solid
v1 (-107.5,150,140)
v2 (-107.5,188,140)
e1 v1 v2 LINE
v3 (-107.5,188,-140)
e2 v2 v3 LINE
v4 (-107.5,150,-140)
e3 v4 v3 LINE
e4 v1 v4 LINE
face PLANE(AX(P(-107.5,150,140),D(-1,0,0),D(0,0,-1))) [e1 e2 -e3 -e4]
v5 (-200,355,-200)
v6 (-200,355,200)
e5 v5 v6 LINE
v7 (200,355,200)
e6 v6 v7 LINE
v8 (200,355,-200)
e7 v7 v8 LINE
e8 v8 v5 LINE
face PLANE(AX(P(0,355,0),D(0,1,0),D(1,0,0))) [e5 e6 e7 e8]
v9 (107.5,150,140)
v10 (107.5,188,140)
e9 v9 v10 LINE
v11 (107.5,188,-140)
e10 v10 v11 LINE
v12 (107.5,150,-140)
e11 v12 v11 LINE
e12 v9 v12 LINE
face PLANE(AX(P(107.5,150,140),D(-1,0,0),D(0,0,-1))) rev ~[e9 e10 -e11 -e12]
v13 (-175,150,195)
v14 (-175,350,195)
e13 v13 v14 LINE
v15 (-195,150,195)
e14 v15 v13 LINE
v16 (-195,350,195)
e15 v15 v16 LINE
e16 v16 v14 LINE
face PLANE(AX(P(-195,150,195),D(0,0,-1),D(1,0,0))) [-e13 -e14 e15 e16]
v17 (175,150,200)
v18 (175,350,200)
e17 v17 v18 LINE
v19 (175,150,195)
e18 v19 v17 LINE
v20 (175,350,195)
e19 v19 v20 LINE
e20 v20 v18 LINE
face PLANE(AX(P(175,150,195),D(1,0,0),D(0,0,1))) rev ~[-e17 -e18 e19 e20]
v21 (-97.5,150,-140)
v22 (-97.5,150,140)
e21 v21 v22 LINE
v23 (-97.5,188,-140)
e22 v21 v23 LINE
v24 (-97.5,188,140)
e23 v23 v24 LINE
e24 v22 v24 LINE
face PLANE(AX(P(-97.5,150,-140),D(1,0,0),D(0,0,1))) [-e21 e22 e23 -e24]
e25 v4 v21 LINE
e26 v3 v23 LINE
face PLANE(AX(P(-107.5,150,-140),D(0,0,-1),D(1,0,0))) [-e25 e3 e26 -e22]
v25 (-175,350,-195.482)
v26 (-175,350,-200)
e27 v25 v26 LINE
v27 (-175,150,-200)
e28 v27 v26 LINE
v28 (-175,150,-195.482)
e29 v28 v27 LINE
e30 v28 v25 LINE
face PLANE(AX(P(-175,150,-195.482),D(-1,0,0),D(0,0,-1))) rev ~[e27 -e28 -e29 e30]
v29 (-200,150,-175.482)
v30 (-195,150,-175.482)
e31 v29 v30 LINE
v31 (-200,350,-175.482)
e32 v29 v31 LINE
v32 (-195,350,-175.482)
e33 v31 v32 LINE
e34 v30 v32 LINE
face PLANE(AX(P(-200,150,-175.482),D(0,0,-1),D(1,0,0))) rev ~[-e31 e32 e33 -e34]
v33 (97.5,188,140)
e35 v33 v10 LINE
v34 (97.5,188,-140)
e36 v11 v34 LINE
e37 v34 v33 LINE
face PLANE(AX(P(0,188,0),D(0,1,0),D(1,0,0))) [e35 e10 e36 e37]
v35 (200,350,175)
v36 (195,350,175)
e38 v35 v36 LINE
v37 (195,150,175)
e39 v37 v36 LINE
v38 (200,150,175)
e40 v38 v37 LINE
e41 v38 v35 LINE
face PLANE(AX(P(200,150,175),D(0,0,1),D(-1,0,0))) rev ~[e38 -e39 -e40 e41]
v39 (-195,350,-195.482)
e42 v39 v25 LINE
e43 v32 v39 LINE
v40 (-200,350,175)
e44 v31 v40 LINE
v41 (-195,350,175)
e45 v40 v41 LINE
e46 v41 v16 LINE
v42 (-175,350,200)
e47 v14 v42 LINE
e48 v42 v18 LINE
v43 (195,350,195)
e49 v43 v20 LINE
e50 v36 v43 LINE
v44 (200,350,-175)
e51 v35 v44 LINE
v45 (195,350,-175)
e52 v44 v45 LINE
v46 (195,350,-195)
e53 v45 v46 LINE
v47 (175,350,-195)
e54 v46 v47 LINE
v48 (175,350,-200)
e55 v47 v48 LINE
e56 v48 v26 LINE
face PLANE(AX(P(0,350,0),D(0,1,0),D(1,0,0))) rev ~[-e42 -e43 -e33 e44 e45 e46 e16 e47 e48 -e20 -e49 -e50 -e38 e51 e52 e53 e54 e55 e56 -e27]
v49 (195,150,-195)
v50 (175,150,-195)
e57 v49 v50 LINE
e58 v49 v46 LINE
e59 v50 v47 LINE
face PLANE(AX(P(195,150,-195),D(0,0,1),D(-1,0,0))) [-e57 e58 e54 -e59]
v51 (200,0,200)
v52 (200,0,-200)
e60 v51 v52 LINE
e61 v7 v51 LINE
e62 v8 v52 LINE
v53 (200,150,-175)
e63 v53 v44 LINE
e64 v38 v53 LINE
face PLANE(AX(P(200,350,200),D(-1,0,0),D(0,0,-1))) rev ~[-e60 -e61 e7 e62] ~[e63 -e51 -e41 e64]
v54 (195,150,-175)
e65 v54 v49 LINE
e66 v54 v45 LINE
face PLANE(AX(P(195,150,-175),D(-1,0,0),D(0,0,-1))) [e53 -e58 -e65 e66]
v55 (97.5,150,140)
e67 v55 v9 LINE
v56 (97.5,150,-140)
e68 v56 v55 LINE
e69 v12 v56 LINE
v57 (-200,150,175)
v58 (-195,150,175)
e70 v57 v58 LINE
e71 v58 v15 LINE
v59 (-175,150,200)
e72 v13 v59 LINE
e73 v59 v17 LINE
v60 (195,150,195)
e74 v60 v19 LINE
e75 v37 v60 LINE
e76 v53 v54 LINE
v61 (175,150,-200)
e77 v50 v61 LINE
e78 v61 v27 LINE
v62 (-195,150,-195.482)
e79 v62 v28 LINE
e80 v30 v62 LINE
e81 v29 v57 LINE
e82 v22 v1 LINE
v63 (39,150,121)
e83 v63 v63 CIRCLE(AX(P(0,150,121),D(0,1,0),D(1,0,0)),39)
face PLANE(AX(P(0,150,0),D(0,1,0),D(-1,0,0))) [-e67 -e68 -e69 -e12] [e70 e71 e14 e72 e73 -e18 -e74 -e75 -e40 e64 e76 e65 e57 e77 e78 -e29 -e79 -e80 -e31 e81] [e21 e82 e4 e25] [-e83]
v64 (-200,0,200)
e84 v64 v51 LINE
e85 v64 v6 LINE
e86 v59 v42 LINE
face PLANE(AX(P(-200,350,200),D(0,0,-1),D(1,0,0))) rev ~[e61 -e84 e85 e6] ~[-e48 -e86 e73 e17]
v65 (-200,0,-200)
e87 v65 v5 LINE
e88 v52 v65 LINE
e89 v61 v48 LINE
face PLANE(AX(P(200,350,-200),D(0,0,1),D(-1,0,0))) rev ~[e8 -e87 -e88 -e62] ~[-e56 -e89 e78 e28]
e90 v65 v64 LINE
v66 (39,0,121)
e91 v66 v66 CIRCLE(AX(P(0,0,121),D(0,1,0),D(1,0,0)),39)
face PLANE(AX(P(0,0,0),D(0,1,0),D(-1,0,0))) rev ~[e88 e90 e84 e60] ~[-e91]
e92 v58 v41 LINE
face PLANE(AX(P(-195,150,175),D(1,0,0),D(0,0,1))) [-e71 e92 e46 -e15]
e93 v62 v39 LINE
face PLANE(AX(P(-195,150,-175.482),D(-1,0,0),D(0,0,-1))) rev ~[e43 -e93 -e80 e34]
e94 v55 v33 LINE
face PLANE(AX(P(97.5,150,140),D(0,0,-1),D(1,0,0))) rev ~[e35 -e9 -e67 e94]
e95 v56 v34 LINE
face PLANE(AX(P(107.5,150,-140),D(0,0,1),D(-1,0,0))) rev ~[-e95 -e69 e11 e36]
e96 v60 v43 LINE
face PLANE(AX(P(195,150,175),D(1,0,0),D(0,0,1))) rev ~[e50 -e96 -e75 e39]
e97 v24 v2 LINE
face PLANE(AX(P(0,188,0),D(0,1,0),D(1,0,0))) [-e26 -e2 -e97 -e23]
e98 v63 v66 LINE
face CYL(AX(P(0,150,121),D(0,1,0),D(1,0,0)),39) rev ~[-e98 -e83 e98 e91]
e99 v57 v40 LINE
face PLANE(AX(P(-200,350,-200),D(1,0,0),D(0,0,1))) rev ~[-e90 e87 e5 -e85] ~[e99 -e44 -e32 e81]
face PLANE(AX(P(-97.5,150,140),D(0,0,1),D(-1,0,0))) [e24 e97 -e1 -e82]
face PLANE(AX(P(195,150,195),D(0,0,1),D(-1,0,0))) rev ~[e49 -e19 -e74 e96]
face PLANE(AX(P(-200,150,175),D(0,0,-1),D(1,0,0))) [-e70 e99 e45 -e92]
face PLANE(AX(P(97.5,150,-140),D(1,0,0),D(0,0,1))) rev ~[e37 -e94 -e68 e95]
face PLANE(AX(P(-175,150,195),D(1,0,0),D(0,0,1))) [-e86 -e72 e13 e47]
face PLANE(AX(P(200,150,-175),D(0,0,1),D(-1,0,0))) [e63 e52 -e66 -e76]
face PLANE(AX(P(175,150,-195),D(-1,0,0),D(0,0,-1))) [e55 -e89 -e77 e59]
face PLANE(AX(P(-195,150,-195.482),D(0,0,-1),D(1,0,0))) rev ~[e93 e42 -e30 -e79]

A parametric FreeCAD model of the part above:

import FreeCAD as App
import Part
import Sketcher
Q = App.Units.Quantity


def add_polygon(sketch, points):
    """Adds a closed chain of lines whose ends are joined by coincident constraints."""
    first, n = sketch.GeometryCount, len(points)
    for a, b in zip(points, points[1:] + points[:1]):
        sketch.addGeometry(Part.LineSegment(App.Vector(*a, 0), App.Vector(*b, 0)), False)
    for i in range(n):
        sketch.addConstraint(Sketcher.Constraint("Coincident", first + i, 2, first + (i + 1) % n, 1))

doc = App.newDocument("Part")
body = doc.addObject("PartDesign::Body", "Body")

sketch1 = body.newObject("Sketcher::SketchObject", "Sketch")
sketch1.AttachmentSupport = (doc.getObject("XZ_Plane"), [""])
sketch1.MapMode = "FlatFace"
add_polygon(sketch1, [(-200, -200), (-200, 200), (200, 200), (200, -200)])
sketch1.addConstraint(Sketcher.Constraint("Vertical", 0))
sketch1.addConstraint(Sketcher.Constraint("Horizontal", 1))
sketch1.addConstraint(Sketcher.Constraint("Vertical", 2))
sketch1.addConstraint(Sketcher.Constraint("Horizontal", 3))
sketch1.addConstraint(Sketcher.Constraint("Symmetric", 0, 2, 2, 2, -1, 1))
sketch1.addConstraint(Sketcher.Constraint("Equal", 3, 0))
sketch1.addConstraint(Sketcher.Constraint("DistanceX", 1, 1, 1, 2, Q("400 mm")))
pad1 = body.newObject("PartDesign::Pad", "Pad")
pad1.Profile = sketch1
pad1.Length = 150
pad1.Reversed = True

sketch2 = body.newObject("Sketcher::SketchObject", "Sketch001")
sketch2.AttachmentSupport = (doc.getObject("XZ_Plane"), [""])
sketch2.MapMode = "FlatFace"
sketch2.AttachmentOffset = App.Placement(App.Vector(0, 0, -150), App.Rotation())
sketch2.addGeometry(Part.Circle(App.Vector(0, 121, 0), App.Vector(0, 0, 1), 39), False)
sketch2.addConstraint(Sketcher.Constraint("PointOnObject", 0, 3, -2))
sketch2.addConstraint(Sketcher.Constraint("Diameter", 0, Q("78 mm")))
sketch2.addConstraint(Sketcher.Constraint("DistanceY", -1, 1, 0, 3, Q("121 mm")))
pocket1 = body.newObject("PartDesign::Pocket", "Pocket")
pocket1.Profile = sketch2
pocket1.Length = 153.75
pocket1.Reversed = True

sketch3 = body.newObject("Sketcher::SketchObject", "Sketch002")
sketch3.AttachmentSupport = (doc.getObject("XZ_Plane"), [""])
sketch3.MapMode = "FlatFace"
sketch3.AttachmentOffset = App.Placement(App.Vector(0, 0, -150), App.Rotation())
add_polygon(sketch3, [(-98, 140), (-98, -140), (-108, -140), (-108, 140)])
add_polygon(sketch3, [(108, -140), (98, -140), (98, 140), (108, 140)])
sketch3.addConstraint(Sketcher.Constraint("Vertical", 0))
sketch3.addConstraint(Sketcher.Constraint("Horizontal", 1))
sketch3.addConstraint(Sketcher.Constraint("Vertical", 2))
sketch3.addConstraint(Sketcher.Constraint("Horizontal", 3))
sketch3.addConstraint(Sketcher.Constraint("Horizontal", 4))
sketch3.addConstraint(Sketcher.Constraint("Vertical", 5))
sketch3.addConstraint(Sketcher.Constraint("Horizontal", 6))
sketch3.addConstraint(Sketcher.Constraint("Vertical", 7))
sketch3.addConstraint(Sketcher.Constraint("Symmetric", 3, 2, 4, 2, -1, 1))
sketch3.addConstraint(Sketcher.Constraint("Symmetric", 1, 2, 6, 2, -1, 1))
sketch3.addConstraint(Sketcher.Constraint("Horizontal", 1, 2, 4, 2))
sketch3.addConstraint(Sketcher.Constraint("DistanceX", 1, 2, 1, 1, Q("10 mm")))
sketch3.addConstraint(Sketcher.Constraint("DistanceY", 0, 2, 0, 1, Q("280 mm")))
sketch3.addConstraint(Sketcher.Constraint("DistanceX", 0, 2, -1, 1, Q("97.5 mm")))
pad2 = body.newObject("PartDesign::Pad", "Pad001")
pad2.Profile = sketch3
pad2.Length = 38
pad2.Reversed = True

sketch4 = body.newObject("Sketcher::SketchObject", "Sketch003")
sketch4.AttachmentSupport = (doc.getObject("XZ_Plane"), [""])
sketch4.MapMode = "FlatFace"
sketch4.AttachmentOffset = App.Placement(App.Vector(0, 0, -150), App.Rotation())
add_polygon(sketch4, [(-175, -200), (-200, -200), (-200, -175.5), (-195, -175.5), (-195, -195.5), (-175, -195.5)])
add_polygon(sketch4, [(200, -200), (175, -200), (175, -195), (195, -195), (195, -175), (200, -175)])
add_polygon(sketch4, [(-195, 175), (-200, 175), (-200, 200), (-175, 200), (-175, 195), (-195, 195)])
add_polygon(sketch4, [(200, 200), (200, 175), (195, 175), (195, 195), (175, 195), (175, 200)])
sketch4.addConstraint(Sketcher.Constraint("Horizontal", 0))
sketch4.addConstraint(Sketcher.Constraint("Vertical", 1))
sketch4.addConstraint(Sketcher.Constraint("Horizontal", 2))
sketch4.addConstraint(Sketcher.Constraint("Vertical", 3))
sketch4.addConstraint(Sketcher.Constraint("Horizontal", 4))
sketch4.addConstraint(Sketcher.Constraint("Vertical", 5))
sketch4.addConstraint(Sketcher.Constraint("Horizontal", 6))
sketch4.addConstraint(Sketcher.Constraint("Vertical", 7))
sketch4.addConstraint(Sketcher.Constraint("Horizontal", 8))
sketch4.addConstraint(Sketcher.Constraint("Vertical", 9))
sketch4.addConstraint(Sketcher.Constraint("Horizontal", 10))
sketch4.addConstraint(Sketcher.Constraint("Vertical", 11))
sketch4.addConstraint(Sketcher.Constraint("Horizontal", 12))
sketch4.addConstraint(Sketcher.Constraint("Vertical", 13))
sketch4.addConstraint(Sketcher.Constraint("Horizontal", 14))
sketch4.addConstraint(Sketcher.Constraint("Vertical", 15))
sketch4.addConstraint(Sketcher.Constraint("Horizontal", 16))
sketch4.addConstraint(Sketcher.Constraint("Vertical", 17))
sketch4.addConstraint(Sketcher.Constraint("Vertical", 18))
sketch4.addConstraint(Sketcher.Constraint("Horizontal", 19))
sketch4.addConstraint(Sketcher.Constraint("Vertical", 20))
sketch4.addConstraint(Sketcher.Constraint("Horizontal", 21))
sketch4.addConstraint(Sketcher.Constraint("Vertical", 22))
sketch4.addConstraint(Sketcher.Constraint("Horizontal", 23))
sketch4.addConstraint(Sketcher.Constraint("Symmetric", 10, 2, 12, 2, -1, 1))
sketch4.addConstraint(Sketcher.Constraint("Symmetric", 6, 2, 14, 2, -1, 1))
sketch4.addConstraint(Sketcher.Constraint("Symmetric", 8, 2, 16, 2, -1, 1))
sketch4.addConstraint(Sketcher.Constraint("Symmetric", 5, 2, 22, 2, -1, 1))
sketch4.addConstraint(Sketcher.Constraint("Symmetric", 5, 2, 6, 2, -2))
sketch4.addConstraint(Sketcher.Constraint("Symmetric", 12, 2, 18, 2, -2))
sketch4.addConstraint(Sketcher.Constraint("Symmetric", 16, 2, 20, 2, -2))
sketch4.addConstraint(Sketcher.Constraint("Vertical", 1, 2, 12, 2))
sketch4.addConstraint(Sketcher.Constraint("Vertical", 3, 2, 16, 2))
sketch4.addConstraint(Sketcher.Constraint("Equal", 21, 3))
sketch4.addConstraint(Sketcher.Constraint("Equal", 19, 7))
sketch4.addConstraint(Sketcher.Constraint("Equal", 3, 9))
sketch4.addConstraint(Sketcher.Constraint("DistanceX", 0, 2, 0, 1, Q("25 mm")))
sketch4.addConstraint(Sketcher.Constraint("DistanceX", 2, 1, 2, 2, Q("5 mm")))
sketch4.addConstraint(Sketcher.Constraint("DistanceX", 0, 2, -1, 1, Q("200 mm")))
sketch4.addConstraint(Sketcher.Constraint("DistanceY", 0, 2, -1, 1, Q("200 mm")))
sketch4.addConstraint(Sketcher.Constraint("DistanceY", 1, 1, 1, 2, Q("24.518 mm")))
pad3 = body.newObject("PartDesign::Pad", "Pad002")
pad3.Profile = sketch4
pad3.Length = 200
pad3.Reversed = True

sketch5 = body.newObject("Sketcher::SketchObject", "Sketch004")
sketch5.AttachmentSupport = (doc.getObject("XZ_Plane"), [""])
sketch5.MapMode = "FlatFace"
sketch5.AttachmentOffset = App.Placement(App.Vector(0, 0, -350), App.Rotation())
add_polygon(sketch5, [(200, -200), (-200, -200), (-200, 200), (200, 200)])
sketch5.addConstraint(Sketcher.Constraint("Horizontal", 0))
sketch5.addConstraint(Sketcher.Constraint("Vertical", 1))
sketch5.addConstraint(Sketcher.Constraint("Horizontal", 2))
sketch5.addConstraint(Sketcher.Constraint("Vertical", 3))
sketch5.addConstraint(Sketcher.Constraint("Symmetric", 0, 2, 2, 2, -1, 1))
sketch5.addConstraint(Sketcher.Constraint("Equal", 2, 1))
sketch5.addConstraint(Sketcher.Constraint("DistanceX", 0, 2, 0, 1, Q("400 mm")))
pad4 = body.newObject("PartDesign::Pad", "Pad003")
pad4.Profile = sketch5
pad4.Length = 5
pad4.Reversed = True

doc.recompute()
